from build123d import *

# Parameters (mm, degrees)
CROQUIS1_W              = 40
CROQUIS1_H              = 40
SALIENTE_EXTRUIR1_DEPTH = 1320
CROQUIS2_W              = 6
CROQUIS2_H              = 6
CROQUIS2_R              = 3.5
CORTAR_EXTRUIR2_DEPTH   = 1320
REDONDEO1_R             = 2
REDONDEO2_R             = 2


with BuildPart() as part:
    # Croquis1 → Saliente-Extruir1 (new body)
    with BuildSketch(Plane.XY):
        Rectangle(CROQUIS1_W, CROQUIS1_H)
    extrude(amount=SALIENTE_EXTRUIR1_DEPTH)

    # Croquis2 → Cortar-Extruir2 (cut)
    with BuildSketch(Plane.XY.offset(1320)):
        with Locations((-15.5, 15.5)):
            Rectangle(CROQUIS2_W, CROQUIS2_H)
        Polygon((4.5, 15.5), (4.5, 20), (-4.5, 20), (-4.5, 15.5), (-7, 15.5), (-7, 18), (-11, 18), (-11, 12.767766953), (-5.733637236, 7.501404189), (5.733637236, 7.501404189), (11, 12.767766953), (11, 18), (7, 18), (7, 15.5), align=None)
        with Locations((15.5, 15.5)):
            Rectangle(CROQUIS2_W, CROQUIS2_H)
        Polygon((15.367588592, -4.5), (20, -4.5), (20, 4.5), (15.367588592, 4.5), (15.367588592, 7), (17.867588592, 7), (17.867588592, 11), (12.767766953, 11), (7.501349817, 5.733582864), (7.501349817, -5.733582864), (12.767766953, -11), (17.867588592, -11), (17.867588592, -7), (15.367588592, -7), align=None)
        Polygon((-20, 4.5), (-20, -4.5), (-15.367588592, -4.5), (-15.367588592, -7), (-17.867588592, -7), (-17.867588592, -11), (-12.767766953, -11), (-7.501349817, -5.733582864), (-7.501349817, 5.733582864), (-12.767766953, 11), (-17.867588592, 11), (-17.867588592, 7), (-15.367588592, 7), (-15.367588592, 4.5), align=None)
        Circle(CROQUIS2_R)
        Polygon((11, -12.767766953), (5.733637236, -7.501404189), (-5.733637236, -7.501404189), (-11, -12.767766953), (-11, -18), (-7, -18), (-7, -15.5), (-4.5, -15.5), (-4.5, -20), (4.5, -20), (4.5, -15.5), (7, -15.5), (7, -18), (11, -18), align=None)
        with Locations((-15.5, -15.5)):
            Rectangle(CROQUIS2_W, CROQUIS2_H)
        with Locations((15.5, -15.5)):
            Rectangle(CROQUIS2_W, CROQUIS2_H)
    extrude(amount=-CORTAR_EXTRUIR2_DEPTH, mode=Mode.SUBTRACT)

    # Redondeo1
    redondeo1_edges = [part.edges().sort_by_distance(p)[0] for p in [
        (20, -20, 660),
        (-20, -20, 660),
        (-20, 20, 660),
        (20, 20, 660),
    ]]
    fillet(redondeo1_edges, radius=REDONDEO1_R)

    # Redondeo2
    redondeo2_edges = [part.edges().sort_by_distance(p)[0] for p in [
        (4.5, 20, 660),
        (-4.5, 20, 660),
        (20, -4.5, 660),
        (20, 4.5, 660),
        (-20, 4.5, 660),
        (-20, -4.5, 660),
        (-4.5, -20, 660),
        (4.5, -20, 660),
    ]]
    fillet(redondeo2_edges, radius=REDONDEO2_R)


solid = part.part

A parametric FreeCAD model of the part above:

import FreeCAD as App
import Part
import Sketcher

V = App.Vector
Q = App.Units.Quantity


def edges_at(feature, points):
    """Names of the edges that pass closest to the given points."""
    edges = feature.Shape.Edges
    near = lambda p: min(range(len(edges)), key=lambda i: edges[i].distToShape(Part.Vertex(*p))[0])
    return sorted({f"Edge{near(p) + 1}" for p in points})

doc = App.newDocument("Part")
params = doc.addObject("Spreadsheet::Sheet", "Params")
for row, (alias, value) in enumerate([
    ("sketch1_width", "40 mm"),
    ("pad1_length", "1320 mm"),
    ("sketch2_diameter", "7 mm"),
    ("sketch2_width", "6 mm"),
    ("sketch2_width2", "9 mm"),
    ("sketch2_width3", "4 mm"),
    ("sketch2_width4", "2.5 mm"),
    ("pocket1_length", "1320 mm"),
    ("fillet_radius", "2 mm"),
    ("fillet2_radius", "2 mm"),
], start=1):
    params.set(f"A{row}", alias)
    params.set(f"B{row}", "=" + value)
    params.setAlias(f"B{row}", alias)

body = doc.addObject("PartDesign::Body", "Body")

sketch1 = body.newObject("Sketcher::SketchObject", "Sketch")
sketch1.AttachmentSupport = (doc.getObject("XY_Plane"), [""])
sketch1.MapMode = "FlatFace"
sketch1.addGeometry(Part.LineSegment(V(-20, 20, 0), V(-20, -20, 0)), False)
sketch1.addGeometry(Part.LineSegment(V(-20, -20, 0), V(20, -20, 0)), False)
sketch1.addGeometry(Part.LineSegment(V(20, -20, 0), V(20, 20, 0)), False)
sketch1.addGeometry(Part.LineSegment(V(20, 20, 0), V(-20, 20, 0)), False)
sketch1.addConstraint(Sketcher.Constraint("Coincident", 0, 2, 1, 1))
sketch1.addConstraint(Sketcher.Constraint("Coincident", 1, 2, 2, 1))
sketch1.addConstraint(Sketcher.Constraint("Coincident", 2, 2, 3, 1))
sketch1.addConstraint(Sketcher.Constraint("Coincident", 3, 2, 0, 1))
sketch1.addConstraint(Sketcher.Constraint("Vertical", 0))
sketch1.addConstraint(Sketcher.Constraint("Horizontal", 1))
sketch1.addConstraint(Sketcher.Constraint("Vertical", 2))
sketch1.addConstraint(Sketcher.Constraint("Horizontal", 3))
sketch1.addConstraint(Sketcher.Constraint("Symmetric", 0, 2, 2, 2, -1, 1))
sketch1.addConstraint(Sketcher.Constraint("Equal", 3, 0))
sketch1.addConstraint(Sketcher.Constraint("DistanceX", 1, 1, 1, 2, Q("40 mm")))
sketch1.setExpression("Constraints[10]", "Params.sketch1_width")
pad1 = body.newObject("PartDesign::Pad", "Pad")
pad1.Profile = sketch1
pad1.setExpression("Length", "Params.pad1_length")

sketch2 = body.newObject("Sketcher::SketchObject", "Sketch001")
sketch2.AttachmentSupport = (doc.getObject("XY_Plane"), [""])
sketch2.MapMode = "FlatFace"
sketch2.AttachmentOffset = App.Placement(V(0, 0, 1320), App.Rotation())
sketch2.addGeometry(Part.LineSegment(V(-18.5, 18.5, 0), V(-18.5, 12.5, 0)), False)
sketch2.addGeometry(Part.LineSegment(V(-18.5, 12.5, 0), V(-12.5, 12.5, 0)), False)
sketch2.addGeometry(Part.LineSegment(V(-12.5, 12.5, 0), V(-12.5, 18.5, 0)), False)
sketch2.addGeometry(Part.LineSegment(V(-12.5, 18.5, 0), V(-18.5, 18.5, 0)), False)
sketch2.addGeometry(Part.LineSegment(V(4.5, 15.5, 0), V(4.5, 20, 0)), False)
sketch2.addGeometry(Part.LineSegment(V(4.5, 20, 0), V(-4.5, 20, 0)), False)
sketch2.addGeometry(Part.LineSegment(V(-4.5, 20, 0), V(-4.5, 15.5, 0)), False)
sketch2.addGeometry(Part.LineSegment(V(-4.5, 15.5, 0), V(-7, 15.5, 0)), False)
sketch2.addGeometry(Part.LineSegment(V(-7, 15.5, 0), V(-7, 18, 0)), False)
sketch2.addGeometry(Part.LineSegment(V(-7, 18, 0), V(-11, 18, 0)), False)
sketch2.addGeometry(Part.LineSegment(V(-11, 18, 0), V(-11, 12.8, 0)), False)
sketch2.addGeometry(Part.LineSegment(V(-11, 12.8, 0), V(-5.7, 7.5, 0)), False)
sketch2.addGeometry(Part.LineSegment(V(-5.7, 7.5, 0), V(5.7, 7.5, 0)), False)
sketch2.addGeometry(Part.LineSegment(V(5.7, 7.5, 0), V(11, 12.8, 0)), False)
sketch2.addGeometry(Part.LineSegment(V(11, 12.8, 0), V(11, 18, 0)), False)
sketch2.addGeometry(Part.LineSegment(V(11, 18, 0), V(7, 18, 0)), False)
sketch2.addGeometry(Part.LineSegment(V(7, 18, 0), V(7, 15.5, 0)), False)
sketch2.addGeometry(Part.LineSegment(V(7, 15.5, 0), V(4.5, 15.5, 0)), False)
sketch2.addGeometry(Part.LineSegment(V(12.5, 18.5, 0), V(12.5, 12.5, 0)), False)
sketch2.addGeometry(Part.LineSegment(V(12.5, 12.5, 0), V(18.5, 12.5, 0)), False)
sketch2.addGeometry(Part.LineSegment(V(18.5, 12.5, 0), V(18.5, 18.5, 0)), False)
sketch2.addGeometry(Part.LineSegment(V(18.5, 18.5, 0), V(12.5, 18.5, 0)), False)
sketch2.addGeometry(Part.LineSegment(V(15.4, -4.5, 0), V(20, -4.5, 0)), False)
sketch2.addGeometry(Part.LineSegment(V(20, -4.5, 0), V(20, 4.5, 0)), False)
sketch2.addGeometry(Part.LineSegment(V(20, 4.5, 0), V(15.4, 4.5, 0)), False)
sketch2.addGeometry(Part.LineSegment(V(15.4, 4.5, 0), V(15.4, 7, 0)), False)
sketch2.addGeometry(Part.LineSegment(V(15.4, 7, 0), V(17.9, 7, 0)), False)
sketch2.addGeometry(Part.LineSegment(V(17.9, 7, 0), V(17.9, 11, 0)), False)
sketch2.addGeometry(Part.LineSegment(V(17.9, 11, 0), V(12.8, 11, 0)), False)
sketch2.addGeometry(Part.LineSegment(V(12.8, 11, 0), V(7.5, 5.7, 0)), False)
sketch2.addGeometry(Part.LineSegment(V(7.5, 5.7, 0), V(7.5, -5.7, 0)), False)
sketch2.addGeometry(Part.LineSegment(V(7.5, -5.7, 0), V(12.8, -11, 0)), False)
sketch2.addGeometry(Part.LineSegment(V(12.8, -11, 0), V(17.9, -11, 0)), False)
sketch2.addGeometry(Part.LineSegment(V(17.9, -11, 0), V(17.9, -7, 0)), False)
sketch2.addGeometry(Part.LineSegment(V(17.9, -7, 0), V(15.4, -7, 0)), False)
sketch2.addGeometry(Part.LineSegment(V(15.4, -7, 0), V(15.4, -4.5, 0)), False)
sketch2.addGeometry(Part.LineSegment(V(-20, 4.5, 0), V(-20, -4.5, 0)), False)
sketch2.addGeometry(Part.LineSegment(V(-20, -4.5, 0), V(-15.4, -4.5, 0)), False)
sketch2.addGeometry(Part.LineSegment(V(-15.4, -4.5, 0), V(-15.4, -7, 0)), False)
sketch2.addGeometry(Part.LineSegment(V(-15.4, -7, 0), V(-17.9, -7, 0)), False)
sketch2.addGeometry(Part.LineSegment(V(-17.9, -7, 0), V(-17.9, -11, 0)), False)
sketch2.addGeometry(Part.LineSegment(V(-17.9, -11, 0), V(-12.8, -11, 0)), False)
sketch2.addGeometry(Part.LineSegment(V(-12.8, -11, 0), V(-7.5, -5.7, 0)), False)
sketch2.addGeometry(Part.LineSegment(V(-7.5, -5.7, 0), V(-7.5, 5.7, 0)), False)
sketch2.addGeometry(Part.LineSegment(V(-7.5, 5.7, 0), V(-12.8, 11, 0)), False)
sketch2.addGeometry(Part.LineSegment(V(-12.8, 11, 0), V(-17.9, 11, 0)), False)
sketch2.addGeometry(Part.LineSegment(V(-17.9, 11, 0), V(-17.9, 7, 0)), False)
sketch2.addGeometry(Part.LineSegment(V(-17.9, 7, 0), V(-15.4, 7, 0)), False)
sketch2.addGeometry(Part.LineSegment(V(-15.4, 7, 0), V(-15.4, 4.5, 0)), False)
sketch2.addGeometry(Part.LineSegment(V(-15.4, 4.5, 0), V(-20, 4.5, 0)), False)
sketch2.addGeometry(Part.Circle(V(0, 0, 0), V(0, 0, 1), 3.5), False)
sketch2.addGeometry(Part.LineSegment(V(11, -12.8, 0), V(5.7, -7.5, 0)), False)
sketch2.addGeometry(Part.LineSegment(V(5.7, -7.5, 0), V(-5.7, -7.5, 0)), False)
sketch2.addGeometry(Part.LineSegment(V(-5.7, -7.5, 0), V(-11, -12.8, 0)), False)
sketch2.addGeometry(Part.LineSegment(V(-11, -12.8, 0), V(-11, -18, 0)), False)
sketch2.addGeometry(Part.LineSegment(V(-11, -18, 0), V(-7, -18, 0)), False)
sketch2.addGeometry(Part.LineSegment(V(-7, -18, 0), V(-7, -15.5, 0)), False)
sketch2.addGeometry(Part.LineSegment(V(-7, -15.5, 0), V(-4.5, -15.5, 0)), False)
sketch2.addGeometry(Part.LineSegment(V(-4.5, -15.5, 0), V(-4.5, -20, 0)), False)
sketch2.addGeometry(Part.LineSegment(V(-4.5, -20, 0), V(4.5, -20, 0)), False)
sketch2.addGeometry(Part.LineSegment(V(4.5, -20, 0), V(4.5, -15.5, 0)), False)
sketch2.addGeometry(Part.LineSegment(V(4.5, -15.5, 0), V(7, -15.5, 0)), False)
sketch2.addGeometry(Part.LineSegment(V(7, -15.5, 0), V(7, -18, 0)), False)
sketch2.addGeometry(Part.LineSegment(V(7, -18, 0), V(11, -18, 0)), False)
sketch2.addGeometry(Part.LineSegment(V(11, -18, 0), V(11, -12.8, 0)), False)
sketch2.addGeometry(Part.LineSegment(V(-18.5, -12.5, 0), V(-18.5, -18.5, 0)), False)
sketch2.addGeometry(Part.LineSegment(V(-18.5, -18.5, 0), V(-12.5, -18.5, 0)), False)
sketch2.addGeometry(Part.LineSegment(V(-12.5, -18.5, 0), V(-12.5, -12.5, 0)), False)
sketch2.addGeometry(Part.LineSegment(V(-12.5, -12.5, 0), V(-18.5, -12.5, 0)), False)
sketch2.addGeometry(Part.LineSegment(V(12.5, -12.5, 0), V(12.5, -18.5, 0)), False)
sketch2.addGeometry(Part.LineSegment(V(12.5, -18.5, 0), V(18.5, -18.5, 0)), False)
sketch2.addGeometry(Part.LineSegment(V(18.5, -18.5, 0), V(18.5, -12.5, 0)), False)
sketch2.addGeometry(Part.LineSegment(V(18.5, -12.5, 0), V(12.5, -12.5, 0)), False)
sketch2.addConstraint(Sketcher.Constraint("Coincident", 0, 2, 1, 1))
sketch2.addConstraint(Sketcher.Constraint("Coincident", 1, 2, 2, 1))
sketch2.addConstraint(Sketcher.Constraint("Coincident", 2, 2, 3, 1))
sketch2.addConstraint(Sketcher.Constraint("Coincident", 3, 2, 0, 1))
sketch2.addConstraint(Sketcher.Constraint("Coincident", 4, 2, 5, 1))
sketch2.addConstraint(Sketcher.Constraint("Coincident", 5, 2, 6, 1))
sketch2.addConstraint(Sketcher.Constraint("Coincident", 6, 2, 7, 1))
sketch2.addConstraint(Sketcher.Constraint("Coincident", 7, 2, 8, 1))
sketch2.addConstraint(Sketcher.Constraint("Coincident", 8, 2, 9, 1))
sketch2.addConstraint(Sketcher.Constraint("Coincident", 9, 2, 10, 1))
sketch2.addConstraint(Sketcher.Constraint("Coincident", 10, 2, 11, 1))
sketch2.addConstraint(Sketcher.Constraint("Coincident", 11, 2, 12, 1))
sketch2.addConstraint(Sketcher.Constraint("Coincident", 12, 2, 13, 1))
sketch2.addConstraint(Sketcher.Constraint("Coincident", 13, 2, 14, 1))
sketch2.addConstraint(Sketcher.Constraint("Coincident", 14, 2, 15, 1))
sketch2.addConstraint(Sketcher.Constraint("Coincident", 15, 2, 16, 1))
sketch2.addConstraint(Sketcher.Constraint("Coincident", 16, 2, 17, 1))
sketch2.addConstraint(Sketcher.Constraint("Coincident", 17, 2, 4, 1))
sketch2.addConstraint(Sketcher.Constraint("Coincident", 18, 2, 19, 1))
sketch2.addConstraint(Sketcher.Constraint("Coincident", 19, 2, 20, 1))
sketch2.addConstraint(Sketcher.Constraint("Coincident", 20, 2, 21, 1))
sketch2.addConstraint(Sketcher.Constraint("Coincident", 21, 2, 18, 1))
sketch2.addConstraint(Sketcher.Constraint("Coincident", 22, 2, 23, 1))
sketch2.addConstraint(Sketcher.Constraint("Coincident", 23, 2, 24, 1))
sketch2.addConstraint(Sketcher.Constraint("Coincident", 24, 2, 25, 1))
sketch2.addConstraint(Sketcher.Constraint("Coincident", 25, 2, 26, 1))
sketch2.addConstraint(Sketcher.Constraint("Coincident", 26, 2, 27, 1))
sketch2.addConstraint(Sketcher.Constraint("Coincident", 27, 2, 28, 1))
sketch2.addConstraint(Sketcher.Constraint("Coincident", 28, 2, 29, 1))
sketch2.addConstraint(Sketcher.Constraint("Coincident", 29, 2, 30, 1))
sketch2.addConstraint(Sketcher.Constraint("Coincident", 30, 2, 31, 1))
sketch2.addConstraint(Sketcher.Constraint("Coincident", 31, 2, 32, 1))
sketch2.addConstraint(Sketcher.Constraint("Coincident", 32, 2, 33, 1))
sketch2.addConstraint(Sketcher.Constraint("Coincident", 33, 2, 34, 1))
sketch2.addConstraint(Sketcher.Constraint("Coincident", 34, 2, 35, 1))
sketch2.addConstraint(Sketcher.Constraint("Coincident", 35, 2, 22, 1))
sketch2.addConstraint(Sketcher.Constraint("Coincident", 36, 2, 37, 1))
sketch2.addConstraint(Sketcher.Constraint("Coincident", 37, 2, 38, 1))
sketch2.addConstraint(Sketcher.Constraint("Coincident", 38, 2, 39, 1))
sketch2.addConstraint(Sketcher.Constraint("Coincident", 39, 2, 40, 1))
sketch2.addConstraint(Sketcher.Constraint("Coincident", 40, 2, 41, 1))
sketch2.addConstraint(Sketcher.Constraint("Coincident", 41, 2, 42, 1))
sketch2.addConstraint(Sketcher.Constraint("Coincident", 42, 2, 43, 1))
sketch2.addConstraint(Sketcher.Constraint("Coincident", 43, 2, 44, 1))
sketch2.addConstraint(Sketcher.Constraint("Coincident", 44, 2, 45, 1))
sketch2.addConstraint(Sketcher.Constraint("Coincident", 45, 2, 46, 1))
sketch2.addConstraint(Sketcher.Constraint("Coincident", 46, 2, 47, 1))
sketch2.addConstraint(Sketcher.Constraint("Coincident", 47, 2, 48, 1))
sketch2.addConstraint(Sketcher.Constraint("Coincident", 48, 2, 49, 1))
sketch2.addConstraint(Sketcher.Constraint("Coincident", 49, 2, 36, 1))
sketch2.addConstraint(Sketcher.Constraint("Coincident", 51, 2, 52, 1))
sketch2.addConstraint(Sketcher.Constraint("Coincident", 52, 2, 53, 1))
sketch2.addConstraint(Sketcher.Constraint("Coincident", 53, 2, 54, 1))
sketch2.addConstraint(Sketcher.Constraint("Coincident", 54, 2, 55, 1))
sketch2.addConstraint(Sketcher.Constraint("Coincident", 55, 2, 56, 1))
sketch2.addConstraint(Sketcher.Constraint("Coincident", 56, 2, 57, 1))
sketch2.addConstraint(Sketcher.Constraint("Coincident", 57, 2, 58, 1))
sketch2.addConstraint(Sketcher.Constraint("Coincident", 58, 2, 59, 1))
sketch2.addConstraint(Sketcher.Constraint("Coincident", 59, 2, 60, 1))
sketch2.addConstraint(Sketcher.Constraint("Coincident", 60, 2, 61, 1))
sketch2.addConstraint(Sketcher.Constraint("Coincident", 61, 2, 62, 1))
sketch2.addConstraint(Sketcher.Constraint("Coincident", 62, 2, 63, 1))
sketch2.addConstraint(Sketcher.Constraint("Coincident", 63, 2, 64, 1))
sketch2.addConstraint(Sketcher.Constraint("Coincident", 64, 2, 51, 1))
sketch2.addConstraint(Sketcher.Constraint("Coincident", 65, 2, 66, 1))
sketch2.addConstraint(Sketcher.Constraint("Coincident", 66, 2, 67, 1))
sketch2.addConstraint(Sketcher.Constraint("Coincident", 67, 2, 68, 1))
sketch2.addConstraint(Sketcher.Constraint("Coincident", 68, 2, 65, 1))
sketch2.addConstraint(Sketcher.Constraint("Coincident", 69, 2, 70, 1))
sketch2.addConstraint(Sketcher.Constraint("Coincident", 70, 2, 71, 1))
sketch2.addConstraint(Sketcher.Constraint("Coincident", 71, 2, 72, 1))
sketch2.addConstraint(Sketcher.Constraint("Coincident", 72, 2, 69, 1))
sketch2.addConstraint(Sketcher.Constraint("Vertical", 0))
sketch2.addConstraint(Sketcher.Constraint("Horizontal", 1))
sketch2.addConstraint(Sketcher.Constraint("Vertical", 2))
sketch2.addConstraint(Sketcher.Constraint("Horizontal", 3))
sketch2.addConstraint(Sketcher.Constraint("Vertical", 4))
sketch2.addConstraint(Sketcher.Constraint("Horizontal", 5))
sketch2.addConstraint(Sketcher.Constraint("Vertical", 6))
sketch2.addConstraint(Sketcher.Constraint("Horizontal", 7))
sketch2.addConstraint(Sketcher.Constraint("Vertical", 8))
sketch2.addConstraint(Sketcher.Constraint("Horizontal", 9))
sketch2.addConstraint(Sketcher.Constraint("Vertical", 10))
sketch2.addConstraint(Sketcher.Constraint("Horizontal", 12))
sketch2.addConstraint(Sketcher.Constraint("Vertical", 14))
sketch2.addConstraint(Sketcher.Constraint("Horizontal", 15))
sketch2.addConstraint(Sketcher.Constraint("Vertical", 16))
sketch2.addConstraint(Sketcher.Constraint("Horizontal", 17))
sketch2.addConstraint(Sketcher.Constraint("Vertical", 18))
sketch2.addConstraint(Sketcher.Constraint("Horizontal", 19))
sketch2.addConstraint(Sketcher.Constraint("Vertical", 20))
sketch2.addConstraint(Sketcher.Constraint("Horizontal", 21))
sketch2.addConstraint(Sketcher.Constraint("Horizontal", 22))
sketch2.addConstraint(Sketcher.Constraint("Vertical", 23))
sketch2.addConstraint(Sketcher.Constraint("Horizontal", 24))
sketch2.addConstraint(Sketcher.Constraint("Vertical", 25))
sketch2.addConstraint(Sketcher.Constraint("Horizontal", 26))
sketch2.addConstraint(Sketcher.Constraint("Vertical", 27))
sketch2.addConstraint(Sketcher.Constraint("Horizontal", 28))
sketch2.addConstraint(Sketcher.Constraint("Vertical", 30))
sketch2.addConstraint(Sketcher.Constraint("Horizontal", 32))
sketch2.addConstraint(Sketcher.Constraint("Vertical", 33))
sketch2.addConstraint(Sketcher.Constraint("Horizontal", 34))
sketch2.addConstraint(Sketcher.Constraint("Vertical", 35))
sketch2.addConstraint(Sketcher.Constraint("Vertical", 36))
sketch2.addConstraint(Sketcher.Constraint("Horizontal", 37))
sketch2.addConstraint(Sketcher.Constraint("Vertical", 38))
sketch2.addConstraint(Sketcher.Constraint("Horizontal", 39))
sketch2.addConstraint(Sketcher.Constraint("Vertical", 40))
sketch2.addConstraint(Sketcher.Constraint("Horizontal", 41))
sketch2.addConstraint(Sketcher.Constraint("Vertical", 43))
sketch2.addConstraint(Sketcher.Constraint("Horizontal", 45))
sketch2.addConstraint(Sketcher.Constraint("Vertical", 46))
sketch2.addConstraint(Sketcher.Constraint("Horizontal", 47))
sketch2.addConstraint(Sketcher.Constraint("Vertical", 48))
sketch2.addConstraint(Sketcher.Constraint("Horizontal", 49))
sketch2.addConstraint(Sketcher.Constraint("Horizontal", 52))
sketch2.addConstraint(Sketcher.Constraint("Vertical", 54))
sketch2.addConstraint(Sketcher.Constraint("Horizontal", 55))
sketch2.addConstraint(Sketcher.Constraint("Vertical", 56))
sketch2.addConstraint(Sketcher.Constraint("Horizontal", 57))
sketch2.addConstraint(Sketcher.Constraint("Vertical", 58))
sketch2.addConstraint(Sketcher.Constraint("Horizontal", 59))
sketch2.addConstraint(Sketcher.Constraint("Vertical", 60))
sketch2.addConstraint(Sketcher.Constraint("Horizontal", 61))
sketch2.addConstraint(Sketcher.Constraint("Vertical", 62))
sketch2.addConstraint(Sketcher.Constraint("Horizontal", 63))
sketch2.addConstraint(Sketcher.Constraint("Vertical", 64))
sketch2.addConstraint(Sketcher.Constraint("Vertical", 65))
sketch2.addConstraint(Sketcher.Constraint("Horizontal", 66))
sketch2.addConstraint(Sketcher.Constraint("Vertical", 67))
sketch2.addConstraint(Sketcher.Constraint("Horizontal", 68))
sketch2.addConstraint(Sketcher.Constraint("Vertical", 69))
sketch2.addConstraint(Sketcher.Constraint("Horizontal", 70))
sketch2.addConstraint(Sketcher.Constraint("Vertical", 71))
sketch2.addConstraint(Sketcher.Constraint("Horizontal", 72))
sketch2.addConstraint(Sketcher.Constraint("Coincident", 50, 3, -1, 1))
sketch2.addConstraint(Sketcher.Constraint("Symmetric", 23, 2, 36, 2, -1, 1))
sketch2.addConstraint(Sketcher.Constraint("Symmetric", 25, 2, 38, 2, -1, 1))
sketch2.addConstraint(Sketcher.Constraint("Symmetric", 27, 2, 40, 2, -1, 1))
sketch2.addConstraint(Sketcher.Constraint("Symmetric", 29, 2, 42, 2, -1, 1))
sketch2.addConstraint(Sketcher.Constraint("Symmetric", 31, 2, 44, 2, -1, 1))
sketch2.addConstraint(Sketcher.Constraint("Symmetric", 33, 2, 46, 2, -1, 1))
sketch2.addConstraint(Sketcher.Constraint("Symmetric", 35, 2, 48, 2, -1, 1))
sketch2.addConstraint(Sketcher.Constraint("Symmetric", 11, 2, 51, 2, -1, 1))
sketch2.addConstraint(Sketcher.Constraint("Symmetric", 13, 2, 53, 2, -1, 1))
sketch2.addConstraint(Sketcher.Constraint("Symmetric", 15, 2, 55, 2, -1, 1))
sketch2.addConstraint(Sketcher.Constraint("Symmetric", 17, 2, 57, 2, -1, 1))
sketch2.addConstraint(Sketcher.Constraint("Symmetric", 5, 2, 59, 2, -1, 1))
sketch2.addConstraint(Sketcher.Constraint("Symmetric", 7, 2, 61, 2, -1, 1))
sketch2.addConstraint(Sketcher.Constraint("Symmetric", 9, 2, 63, 2, -1, 1))
sketch2.addConstraint(Sketcher.Constraint("Symmetric", 20, 2, 65, 2, -1, 1))
sketch2.addConstraint(Sketcher.Constraint("Symmetric", 18, 2, 67, 2, -1, 1))
sketch2.addConstraint(Sketcher.Constraint("Symmetric", 2, 2, 69, 2, -1, 1))
sketch2.addConstraint(Sketcher.Constraint("Symmetric", 0, 2, 71, 2, -1, 1))
sketch2.addConstraint(Sketcher.Constraint("Symmetric", 10, 2, 13, 2, -2))
sketch2.addConstraint(Sketcher.Constraint("Symmetric", 8, 2, 15, 2, -2))
sketch2.addConstraint(Sketcher.Constraint("Symmetric", 6, 2, 17, 2, -2))
sketch2.addConstraint(Sketcher.Constraint("Symmetric", 1, 2, 18, 2, -2))
sketch2.addConstraint(Sketcher.Constraint("Symmetric", 3, 2, 20, 2, -2))
sketch2.addConstraint(Sketcher.Constraint("Symmetric", 35, 2, 37, 2, -2))
sketch2.addConstraint(Sketcher.Constraint("Symmetric", 33, 2, 39, 2, -2))
sketch2.addConstraint(Sketcher.Constraint("Symmetric", 31, 2, 41, 2, -2))
sketch2.addConstraint(Sketcher.Constraint("Perpendicular", 11, 13))
sketch2.addConstraint(Sketcher.Constraint("Parallel", 13, 29))
sketch2.addConstraint(Sketcher.Constraint("Perpendicular", 29, 31))
sketch2.addConstraint(Sketcher.Constraint("Perpendicular", 31, 42))
sketch2.addConstraint(Sketcher.Constraint("Perpendicular", 42, 44))
sketch2.addConstraint(Sketcher.Constraint("Parallel", 44, 51))
sketch2.addConstraint(Sketcher.Constraint("Perpendicular", 51, 53))
sketch2.addConstraint(Sketcher.Constraint("Horizontal", 30, 2, 42, 2))
sketch2.addConstraint(Sketcher.Constraint("Equal", 17, 26))
sketch2.addConstraint(Sketcher.Constraint("Equal", 72, 0))
sketch2.addConstraint(Sketcher.Constraint("Equal", 61, 8))
sketch2.addConstraint(Sketcher.Constraint("Equal", 59, 23))
sketch2.addConstraint(Sketcher.Constraint("Equal", 16, 25))
sketch2.addConstraint(Sketcher.Constraint("Equal", 63, 27))
sketch2.addConstraint(Sketcher.Constraint("Diameter", 50, Q("7 mm")))
sketch2.addConstraint(Sketcher.Constraint("DistanceX", 1, 1, 1, 2, Q("6 mm")))
sketch2.addConstraint(Sketcher.Constraint("DistanceX", 5, 2, 5, 1, Q("9 mm")))
sketch2.addConstraint(Sketcher.Constraint("DistanceX", 9, 2, 9, 1, Q("4 mm")))
sketch2.addConstraint(Sketcher.Constraint("DistanceX", 7, 2, 7, 1, Q("2.5 mm")))
sketch2.addConstraint(Sketcher.Constraint("DistanceY", 4, 1, 4, 2, Q("4.5 mm")))
sketch2.addConstraint(Sketcher.Constraint("DistanceY", -1, 1, 4, 2, Q("20 mm")))
sketch2.addConstraint(Sketcher.Constraint("DistanceX", -1, 1, 22, 2, Q("20 mm")))
sketch2.addConstraint(Sketcher.Constraint("DistanceX", 0, 2, -1, 1, Q("18.5 mm")))
sketch2.addConstraint(Sketcher.Constraint("DistanceY", -1, 1, 0, 2, Q("12.5 mm")))
sketch2.addConstraint(Sketcher.Constraint("DistanceX", 22, 1, 22, 2, Q("4.632411 mm")))
sketch2.addConstraint(Sketcher.Constraint("DistanceX", 28, 2, 28, 1, Q("5.099822 mm")))
sketch2.addConstraint(Sketcher.Constraint("Distance", 11, Q("7.447762 mm")))
sketch2.addConstraint(Sketcher.Constraint("Distance", 29, Q("7.447839 mm")))
sketch2.addConstraint(Sketcher.Constraint("DistanceY", 10, 2, 10, 1, Q("5.232233 mm")))
sketch2.setExpression("Constraints[177]", "Params.sketch2_diameter")
sketch2.setExpression("Constraints[178]", "Params.sketch2_width")
sketch2.setExpression("Constraints[179]", "Params.sketch2_width2")
sketch2.setExpression("Constraints[180]", "Params.sketch2_width3")
sketch2.setExpression("Constraints[181]", "Params.sketch2_width4")
pocket1 = body.newObject("PartDesign::Pocket", "Pocket")
pocket1.Profile = sketch2
pocket1.setExpression("Length", "Params.pocket1_length")
doc.recompute()

fillet = body.newObject("PartDesign::Fillet", "Fillet")
fillet.Base = (pocket1, edges_at(pocket1, [
    (20, -20, 660),
    (-20, -20, 660),
    (-20, 20, 660),
    (20, 20, 660),
]))
fillet.setExpression("Radius", "Params.fillet_radius")
doc.recompute()

fillet2 = body.newObject("PartDesign::Fillet", "Fillet001")
fillet2.Base = (fillet, edges_at(fillet, [
    (4.5, 20, 660),
    (-4.5, 20, 660),
    (20, -4.5, 660),
    (20, 4.5, 660),
    (-20, 4.5, 660),
    (-20, -4.5, 660),
    (-4.5, -20, 660),
    (4.5, -20, 660),
]))
fillet2.setExpression("Radius", "Params.fillet2_radius")

doc.recompute()
